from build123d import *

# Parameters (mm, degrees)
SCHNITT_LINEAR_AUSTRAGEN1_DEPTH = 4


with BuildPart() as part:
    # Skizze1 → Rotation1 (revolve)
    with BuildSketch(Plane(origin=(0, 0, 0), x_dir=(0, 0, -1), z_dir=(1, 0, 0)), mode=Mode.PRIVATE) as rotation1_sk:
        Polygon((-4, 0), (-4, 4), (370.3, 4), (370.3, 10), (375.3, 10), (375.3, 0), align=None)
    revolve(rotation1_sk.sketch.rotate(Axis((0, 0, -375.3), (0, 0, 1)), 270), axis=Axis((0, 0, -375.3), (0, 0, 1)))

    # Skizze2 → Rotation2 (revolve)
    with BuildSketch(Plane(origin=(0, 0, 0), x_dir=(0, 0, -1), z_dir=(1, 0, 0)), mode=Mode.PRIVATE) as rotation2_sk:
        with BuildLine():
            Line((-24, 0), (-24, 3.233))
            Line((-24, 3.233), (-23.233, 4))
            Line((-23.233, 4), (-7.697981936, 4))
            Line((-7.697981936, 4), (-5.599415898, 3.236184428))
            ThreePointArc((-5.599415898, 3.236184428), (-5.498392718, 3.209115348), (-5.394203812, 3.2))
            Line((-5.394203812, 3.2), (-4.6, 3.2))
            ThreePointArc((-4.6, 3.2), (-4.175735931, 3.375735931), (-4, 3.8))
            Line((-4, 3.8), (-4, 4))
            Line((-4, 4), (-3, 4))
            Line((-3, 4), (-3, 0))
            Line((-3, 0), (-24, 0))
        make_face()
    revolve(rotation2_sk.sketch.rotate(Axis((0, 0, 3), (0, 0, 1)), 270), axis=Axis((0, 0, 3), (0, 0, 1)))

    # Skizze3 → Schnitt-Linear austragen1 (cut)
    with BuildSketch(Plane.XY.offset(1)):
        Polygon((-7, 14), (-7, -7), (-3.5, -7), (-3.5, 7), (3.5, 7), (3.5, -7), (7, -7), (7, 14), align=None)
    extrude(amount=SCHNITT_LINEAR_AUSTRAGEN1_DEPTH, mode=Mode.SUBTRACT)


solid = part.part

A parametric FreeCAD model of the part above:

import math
import FreeCAD as App
import Part
import Sketcher
Q = App.Units.Quantity


def add_polygon(sketch, points):
    """Adds a closed chain of lines whose ends are joined by coincident constraints."""
    first, n = sketch.GeometryCount, len(points)
    for a, b in zip(points, points[1:] + points[:1]):
        sketch.addGeometry(Part.LineSegment(App.Vector(*a, 0), App.Vector(*b, 0)), False)
    for i in range(n):
        sketch.addConstraint(Sketcher.Constraint("Coincident", first + i, 2, first + (i + 1) % n, 1))

doc = App.newDocument("Part")
body = doc.addObject("PartDesign::Body", "Body")

# Sketch on YZ plane
sketch1 = body.newObject("Sketcher::SketchObject", "Sketch")
sketch1.AttachmentSupport = (doc.getObject("YZ_Plane"), [""])
sketch1.MapMode = "FlatFace"
add_polygon(sketch1, [(4, 4), (0, 4), (0, -375.3), (10, -375.3), (10, -370.3), (4, -370.3)])  # lines 0-5
sketch1.addConstraint(Sketcher.Constraint("Horizontal", 0))
sketch1.addConstraint(Sketcher.Constraint("Vertical", 1))
sketch1.addConstraint(Sketcher.Constraint("Horizontal", 2))
sketch1.addConstraint(Sketcher.Constraint("Vertical", 3))
sketch1.addConstraint(Sketcher.Constraint("Horizontal", 4))
sketch1.addConstraint(Sketcher.Constraint("Vertical", 5))
sketch1.addConstraint(Sketcher.Constraint("PointOnObject", 0, 2, -2))
sketch1.addConstraint(Sketcher.Constraint("DistanceX", 0, 2, 0, 1, Q("4 mm")))
sketch1.addConstraint(Sketcher.Constraint("DistanceX", 2, 1, 2, 2, Q("10 mm")))
sketch1.addConstraint(Sketcher.Constraint("DistanceY", 3, 1, 3, 2, Q("5 mm")))
sketch1.addConstraint(Sketcher.Constraint("DistanceY", 1, 2, 1, 1, Q("379.3 mm")))
sketch1.addConstraint(Sketcher.Constraint("DistanceY", -1, 1, 0, 2, Q("4 mm")))
revolution = body.newObject("PartDesign::Revolution", "Revolution")
revolution.Profile = sketch1
revolution.ReferenceAxis = (sketch1, ["V_Axis"])
revolution.Angle = 360

# Sketch on YZ plane
sketch2 = body.newObject("Sketcher::SketchObject", "Sketch001")
sketch2.AttachmentSupport = (doc.getObject("YZ_Plane"), [""])
sketch2.MapMode = "FlatFace"
sketch2.addGeometry(Part.LineSegment(App.Vector(3.23, 24, 0), App.Vector(0, 24, 0)), False)
sketch2.addGeometry(Part.LineSegment(App.Vector(0, 24, 0), App.Vector(0, 3, 0)), False)
sketch2.addGeometry(Part.LineSegment(App.Vector(0, 3, 0), App.Vector(4, 3, 0)), False)
sketch2.addGeometry(Part.LineSegment(App.Vector(4, 3, 0), App.Vector(4, 4, 0)), False)
sketch2.addGeometry(Part.LineSegment(App.Vector(4, 4, 0), App.Vector(3.8, 4, 0)), False)
sketch2.addGeometry(Part.ArcOfCircle(Part.Circle(App.Vector(3.8, 4.6, 0), App.Vector(0, 0, 1), 0.6), math.radians(180), math.radians(270)), False)
sketch2.addGeometry(Part.LineSegment(App.Vector(3.2, 4.6, 0), App.Vector(3.2, 5.39, 0)), False)
sketch2.addGeometry(Part.ArcOfCircle(Part.Circle(App.Vector(3.8, 5.39, 0), App.Vector(0, 0, 1), 0.6), math.radians(160), math.radians(180)), False)
sketch2.addGeometry(Part.LineSegment(App.Vector(3.24, 5.6, 0), App.Vector(4, 7.7, 0)), False)
sketch2.addGeometry(Part.LineSegment(App.Vector(4, 7.7, 0), App.Vector(4, 23.23, 0)), False)
sketch2.addGeometry(Part.LineSegment(App.Vector(4, 23.23, 0), App.Vector(3.23, 24, 0)), False)
sketch2.addConstraint(Sketcher.Constraint("Coincident", 0, 2, 1, 1))
sketch2.addConstraint(Sketcher.Constraint("Coincident", 1, 2, 2, 1))
sketch2.addConstraint(Sketcher.Constraint("Coincident", 2, 2, 3, 1))
sketch2.addConstraint(Sketcher.Constraint("Coincident", 3, 2, 4, 1))
sketch2.addConstraint(Sketcher.Constraint("Tangent", 4, 2, 5, 2))
sketch2.addConstraint(Sketcher.Constraint("Tangent", 5, 1, 6, 1))
sketch2.addConstraint(Sketcher.Constraint("Tangent", 6, 2, 7, 2))
sketch2.addConstraint(Sketcher.Constraint("Tangent", 7, 1, 8, 1))
sketch2.addConstraint(Sketcher.Constraint("Coincident", 8, 2, 9, 1))
sketch2.addConstraint(Sketcher.Constraint("Coincident", 9, 2, 10, 1))
sketch2.addConstraint(Sketcher.Constraint("Coincident", 10, 2, 0, 1))
sketch2.addConstraint(Sketcher.Constraint("Horizontal", 0))
sketch2.addConstraint(Sketcher.Constraint("Vertical", 1))
sketch2.addConstraint(Sketcher.Constraint("Horizontal", 2))
sketch2.addConstraint(Sketcher.Constraint("Vertical", 3))
sketch2.addConstraint(Sketcher.Constraint("Horizontal", 4))
sketch2.addConstraint(Sketcher.Constraint("Vertical", 6))
sketch2.addConstraint(Sketcher.Constraint("Vertical", 9))
sketch2.addConstraint(Sketcher.Constraint("Equal", 5, 7))
sketch2.addConstraint(Sketcher.Constraint("PointOnObject", 0, 2, -2))
sketch2.addConstraint(Sketcher.Constraint("Vertical", 3, 2, 8, 2))
sketch2.addConstraint(Sketcher.Constraint("Radius", 5, Q("0.6 mm")))
sketch2.addConstraint(Sketcher.Constraint("DistanceX", 2, 1, 2, 2, Q("4 mm")))
sketch2.addConstraint(Sketcher.Constraint("DistanceY", 1, 2, 1, 1, Q("21 mm")))
sketch2.addConstraint(Sketcher.Constraint("DistanceY", 3, 1, 3, 2, Q("1 mm")))
sketch2.addConstraint(Sketcher.Constraint("Angle", 8, Q("70 deg")))
sketch2.addConstraint(Sketcher.Constraint("Angle", 10, Q("135 deg")))
sketch2.addConstraint(Sketcher.Constraint("DistanceX", 4, 2, 4, 1, Q("0.2 mm")))
sketch2.addConstraint(Sketcher.Constraint("DistanceY", -1, 1, 0, 2, Q("24 mm")))
sketch2.addConstraint(Sketcher.Constraint("DistanceX", 0, 2, 0, 1, Q("3.233 mm")))
sketch2.addConstraint(Sketcher.Constraint("DistanceY", 9, 1, 9, 2, Q("15.535018 mm")))
revolution2 = body.newObject("PartDesign::Revolution", "Revolution001")
revolution2.Profile = sketch2
revolution2.ReferenceAxis = (sketch2, ["V_Axis"])
revolution2.Angle = 360

# Sketch on XY plane
sketch3 = body.newObject("Sketcher::SketchObject", "Sketch002")
sketch3.AttachmentSupport = (doc.getObject("XY_Plane"), [""])
sketch3.MapMode = "FlatFace"
sketch3.AttachmentOffset = App.Placement(App.Vector(0, 0, 1), App.Rotation())
add_polygon(sketch3, [(-7, 14), (-7, -7), (-3.5, -7), (-3.5, 7), (3.5, 7), (3.5, -7), (7, -7), (7, 14)])  # lines 0-7
sketch3.addConstraint(Sketcher.Constraint("Vertical", 0))
sketch3.addConstraint(Sketcher.Constraint("Horizontal", 1))
sketch3.addConstraint(Sketcher.Constraint("Vertical", 2))
sketch3.addConstraint(Sketcher.Constraint("Horizontal", 3))
sketch3.addConstraint(Sketcher.Constraint("Vertical", 4))
sketch3.addConstraint(Sketcher.Constraint("Horizontal", 5))
sketch3.addConstraint(Sketcher.Constraint("Vertical", 6))
sketch3.addConstraint(Sketcher.Constraint("Horizontal", 7))
sketch3.addConstraint(Sketcher.Constraint("Symmetric", 1, 2, 3, 2, -1, 1))
sketch3.addConstraint(Sketcher.Constraint("Symmetric", 0, 2, 5, 2, -2))
sketch3.addConstraint(Sketcher.Constraint("Equal", 7, 2))
sketch3.addConstraint(Sketcher.Constraint("DistanceX", 3, 1, 3, 2, Q("7 mm")))
sketch3.addConstraint(Sketcher.Constraint("DistanceX", 7, 2, 7, 1, Q("14 mm")))
sketch3.addConstraint(Sketcher.Constraint("DistanceY", 0, 2, 0, 1, Q("21 mm")))
pocket1 = body.newObject("PartDesign::Pocket", "Pocket")
pocket1.Profile = sketch3
pocket1.Length = 4
pocket1.Reversed = True

doc.recompute()
